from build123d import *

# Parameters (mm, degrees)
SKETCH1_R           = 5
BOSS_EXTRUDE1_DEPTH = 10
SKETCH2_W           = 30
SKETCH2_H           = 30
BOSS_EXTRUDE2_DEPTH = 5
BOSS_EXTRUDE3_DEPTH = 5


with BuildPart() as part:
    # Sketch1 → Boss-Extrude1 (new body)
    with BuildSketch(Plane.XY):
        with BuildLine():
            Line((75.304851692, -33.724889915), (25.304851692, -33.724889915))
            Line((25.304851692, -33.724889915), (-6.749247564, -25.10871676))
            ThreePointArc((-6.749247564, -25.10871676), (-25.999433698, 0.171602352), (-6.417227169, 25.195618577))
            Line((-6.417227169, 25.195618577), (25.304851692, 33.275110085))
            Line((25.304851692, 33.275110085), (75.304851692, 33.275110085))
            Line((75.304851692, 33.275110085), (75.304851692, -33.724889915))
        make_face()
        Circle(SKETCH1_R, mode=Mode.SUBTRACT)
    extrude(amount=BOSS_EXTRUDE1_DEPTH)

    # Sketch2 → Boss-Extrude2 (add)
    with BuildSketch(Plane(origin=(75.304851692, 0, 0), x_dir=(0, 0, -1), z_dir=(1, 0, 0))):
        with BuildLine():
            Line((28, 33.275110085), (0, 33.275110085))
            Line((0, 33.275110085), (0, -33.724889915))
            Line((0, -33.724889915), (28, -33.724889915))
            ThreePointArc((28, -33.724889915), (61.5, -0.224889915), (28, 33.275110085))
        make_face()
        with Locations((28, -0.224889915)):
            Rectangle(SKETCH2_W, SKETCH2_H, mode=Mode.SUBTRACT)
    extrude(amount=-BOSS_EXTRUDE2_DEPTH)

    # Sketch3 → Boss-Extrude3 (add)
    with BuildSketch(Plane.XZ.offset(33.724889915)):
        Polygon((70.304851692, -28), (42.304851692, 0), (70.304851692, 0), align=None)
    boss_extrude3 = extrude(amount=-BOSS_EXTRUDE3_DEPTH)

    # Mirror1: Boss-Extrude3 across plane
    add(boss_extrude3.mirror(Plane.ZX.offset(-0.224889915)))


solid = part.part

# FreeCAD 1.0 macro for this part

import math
import FreeCAD as App
import Part
import Sketcher
from FreeCAD import Vector

doc = App.newDocument("Part")
params = doc.addObject("Spreadsheet::Sheet", "Params")
for row, (alias, value) in enumerate([
    ("sketch1_diameter", "10 mm"),
    ("sketch1_radius", "26 mm"),
    ("sketch1_width", "50 mm"),
    ("sketch1_height", "67 mm"),
    ("pad1_length", "10 mm"),
    ("sketch2_radius", "33.5 mm"),
    ("sketch2_width", "30 mm"),
    ("sketch2_height", "28 mm"),
    ("pad2_length", "5 mm"),
    ("sketch3_width", "28 mm"),
    ("pad3_length", "5 mm"),
], start=1):
    params.set(f"A{row}", alias)
    params.set(f"B{row}", "=" + value)
    params.setAlias(f"B{row}", alias)

body = doc.addObject("PartDesign::Body", "Body")

sketch1 = body.newObject("Sketcher::SketchObject", "Sketch")
sketch1.AttachmentSupport = (doc.getObject("XY_Plane"), [""])
sketch1.MapMode = "FlatFace"
sketch1.addGeometry([
    Part.LineSegment(Vector(25, -34, 0), Vector(75, -34, 0)),
    Part.LineSegment(Vector(75, -34, 0), Vector(75, 33, 0)),
    Part.LineSegment(Vector(75, 33, 0), Vector(25, 33, 0)),
    Part.LineSegment(Vector(25, 33, 0), Vector(-6, 25, 0)),
    Part.ArcOfCircle(Part.Circle(Vector(0, 0, 0), Vector(0, 0, 1), 26), math.radians(104), math.radians(255)),
    Part.LineSegment(Vector(-7, -25, 0), Vector(25, -34, 0)),
    Part.Circle(Vector(0, 0, 0), Vector(0, 0, 1), 5),
], False)
sketch1.addConstraint([
    Sketcher.Constraint("Coincident", 0, 2, 1, 1),
    Sketcher.Constraint("Coincident", 1, 2, 2, 1),
    Sketcher.Constraint("Coincident", 2, 2, 3, 1),
    Sketcher.Constraint("Tangent", 3, 2, 4, 1),
    Sketcher.Constraint("Tangent", 4, 2, 5, 1),
    Sketcher.Constraint("Coincident", 5, 2, 0, 1),
    Sketcher.Constraint("Horizontal", 0),
    Sketcher.Constraint("Vertical", 1),
    Sketcher.Constraint("Horizontal", 2),
    Sketcher.Constraint("Coincident", 4, 3, -1, 1),
    Sketcher.Constraint("Coincident", 6, 3, -1, 1),
    Sketcher.Constraint("Vertical", 2, 2, 5, 2),
    Sketcher.Constraint("Diameter", 6, 10.0),
    Sketcher.Constraint("Radius", 4, 26.0),
    Sketcher.Constraint("DistanceX", 0, 1, 0, 2, 50.0),
    Sketcher.Constraint("DistanceY", 1, 1, 1, 2, 67.0),
    Sketcher.Constraint("DistanceX", 4, 2, 2, 2, 32.054099),
    Sketcher.Constraint("Distance", 3, 32.73482),
])
sketch1.setExpression("Constraints[12]", "Params.sketch1_diameter")
sketch1.setExpression("Constraints[13]", "Params.sketch1_radius")
sketch1.setExpression("Constraints[14]", "Params.sketch1_width")
sketch1.setExpression("Constraints[15]", "Params.sketch1_height")
pad1 = body.newObject("PartDesign::Pad", "Pad")
pad1.Profile = sketch1
pad1.setExpression("Length", "Params.pad1_length")

sketch2 = body.newObject("Sketcher::SketchObject", "Sketch001")
sketch2.AttachmentSupport = (doc.getObject("YZ_Plane"), [""])
sketch2.MapMode = "FlatFace"
sketch2.AttachmentOffset = App.Placement(Vector(0, 0, 75.304852), App.Rotation())
sketch2.addGeometry([
    Part.LineSegment(Vector(33, -28, 0), Vector(33, 0, 0)),
    Part.LineSegment(Vector(33, 0, 0), Vector(-34, 0, 0)),
    Part.LineSegment(Vector(-34, 0, 0), Vector(-34, -28, 0)),
    Part.ArcOfCircle(Part.Circle(Vector(0, -28, 0), Vector(0, 0, 1), 34), math.radians(180), math.radians(360)),
    Part.LineSegment(Vector(-15, -43, 0), Vector(-15, -13, 0)),
    Part.LineSegment(Vector(-15, -13, 0), Vector(15, -13, 0)),
    Part.LineSegment(Vector(15, -13, 0), Vector(15, -43, 0)),
    Part.LineSegment(Vector(15, -43, 0), Vector(-15, -43, 0)),
], False)
sketch2.addConstraint([
    Sketcher.Constraint("Coincident", 0, 2, 1, 1),
    Sketcher.Constraint("Coincident", 1, 2, 2, 1),
    Sketcher.Constraint("Tangent", 2, 2, 3, 1),
    Sketcher.Constraint("Tangent", 3, 2, 0, 1),
    Sketcher.Constraint("Coincident", 4, 2, 5, 1),
    Sketcher.Constraint("Coincident", 5, 2, 6, 1),
    Sketcher.Constraint("Coincident", 6, 2, 7, 1),
    Sketcher.Constraint("Coincident", 7, 2, 4, 1),
    Sketcher.Constraint("Vertical", 0),
    Sketcher.Constraint("Horizontal", 1),
    Sketcher.Constraint("Vertical", 2),
    Sketcher.Constraint("Vertical", 4),
    Sketcher.Constraint("Horizontal", 5),
    Sketcher.Constraint("Vertical", 6),
    Sketcher.Constraint("Horizontal", 7),
    Sketcher.Constraint("PointOnObject", 0, 2, -1),
    Sketcher.Constraint("Equal", 7, 4),
    Sketcher.Constraint("Radius", 3, 33.5),
    Sketcher.Constraint("DistanceX", 5, 1, 5, 2, 30.0),
    Sketcher.Constraint("DistanceY", 0, 1, 0, 2, 28.0),
    Sketcher.Constraint("DistanceY", 4, 2, -1, 1, 13.0),
    Sketcher.Constraint("DistanceX", 4, 2, 3, 3, 15.0),
    Sketcher.Constraint("DistanceX", 3, 3, -1, 1, 0.22489),
])
sketch2.setExpression("Constraints[17]", "Params.sketch2_radius")
sketch2.setExpression("Constraints[18]", "Params.sketch2_width")
sketch2.setExpression("Constraints[19]", "Params.sketch2_height")
pad2 = body.newObject("PartDesign::Pad", "Pad001")
pad2.Profile = sketch2
pad2.setExpression("Length", "Params.pad2_length")
pad2.Reversed = True

sketch3 = body.newObject("Sketcher::SketchObject", "Sketch002")
sketch3.AttachmentSupport = (doc.getObject("XZ_Plane"), [""])
sketch3.MapMode = "FlatFace"
sketch3.AttachmentOffset = App.Placement(Vector(0, 0, 33.72489), App.Rotation())
sketch3.addGeometry([
    Part.LineSegment(Vector(42, 0, 0), Vector(70, -28, 0)),
    Part.LineSegment(Vector(70, -28, 0), Vector(70, 0, 0)),
    Part.LineSegment(Vector(70, 0, 0), Vector(42, 0, 0)),
], False)
sketch3.addConstraint([
    Sketcher.Constraint("Coincident", 0, 2, 1, 1),
    Sketcher.Constraint("Coincident", 1, 2, 2, 1),
    Sketcher.Constraint("Coincident", 2, 2, 0, 1),
    Sketcher.Constraint("Vertical", 1),
    Sketcher.Constraint("Horizontal", 2),
    Sketcher.Constraint("PointOnObject", 1, 2, -1),
    Sketcher.Constraint("Equal", 2, 1),
    Sketcher.Constraint("DistanceX", 2, 2, 2, 1, 28.0),
    Sketcher.Constraint("DistanceX", -1, 1, 0, 2, 70.304852),
])
sketch3.setExpression("Constraints[7]", "Params.sketch3_width")
pad3 = body.newObject("PartDesign::Pad", "Pad002")
pad3.Profile = sketch3
pad3.setExpression("Length", "Params.pad3_length")
pad3.Reversed = True
doc.recompute()

datumplane = body.newObject("PartDesign::Plane", "DatumPlane")
datumplane.AttachmentSupport = (doc.getObject("XZ_Plane"), [""])
datumplane.MapMode = "FlatFace"
datumplane.AttachmentOffset = App.Placement(Vector(0, 0, 0.22489), App.Rotation())
mirrored = body.newObject("PartDesign::Mirrored", "Mirrored")
mirrored.Originals = [pad3]
mirrored.MirrorPlane = (datumplane, [""])
body.Tip = mirrored

doc.recompute()
